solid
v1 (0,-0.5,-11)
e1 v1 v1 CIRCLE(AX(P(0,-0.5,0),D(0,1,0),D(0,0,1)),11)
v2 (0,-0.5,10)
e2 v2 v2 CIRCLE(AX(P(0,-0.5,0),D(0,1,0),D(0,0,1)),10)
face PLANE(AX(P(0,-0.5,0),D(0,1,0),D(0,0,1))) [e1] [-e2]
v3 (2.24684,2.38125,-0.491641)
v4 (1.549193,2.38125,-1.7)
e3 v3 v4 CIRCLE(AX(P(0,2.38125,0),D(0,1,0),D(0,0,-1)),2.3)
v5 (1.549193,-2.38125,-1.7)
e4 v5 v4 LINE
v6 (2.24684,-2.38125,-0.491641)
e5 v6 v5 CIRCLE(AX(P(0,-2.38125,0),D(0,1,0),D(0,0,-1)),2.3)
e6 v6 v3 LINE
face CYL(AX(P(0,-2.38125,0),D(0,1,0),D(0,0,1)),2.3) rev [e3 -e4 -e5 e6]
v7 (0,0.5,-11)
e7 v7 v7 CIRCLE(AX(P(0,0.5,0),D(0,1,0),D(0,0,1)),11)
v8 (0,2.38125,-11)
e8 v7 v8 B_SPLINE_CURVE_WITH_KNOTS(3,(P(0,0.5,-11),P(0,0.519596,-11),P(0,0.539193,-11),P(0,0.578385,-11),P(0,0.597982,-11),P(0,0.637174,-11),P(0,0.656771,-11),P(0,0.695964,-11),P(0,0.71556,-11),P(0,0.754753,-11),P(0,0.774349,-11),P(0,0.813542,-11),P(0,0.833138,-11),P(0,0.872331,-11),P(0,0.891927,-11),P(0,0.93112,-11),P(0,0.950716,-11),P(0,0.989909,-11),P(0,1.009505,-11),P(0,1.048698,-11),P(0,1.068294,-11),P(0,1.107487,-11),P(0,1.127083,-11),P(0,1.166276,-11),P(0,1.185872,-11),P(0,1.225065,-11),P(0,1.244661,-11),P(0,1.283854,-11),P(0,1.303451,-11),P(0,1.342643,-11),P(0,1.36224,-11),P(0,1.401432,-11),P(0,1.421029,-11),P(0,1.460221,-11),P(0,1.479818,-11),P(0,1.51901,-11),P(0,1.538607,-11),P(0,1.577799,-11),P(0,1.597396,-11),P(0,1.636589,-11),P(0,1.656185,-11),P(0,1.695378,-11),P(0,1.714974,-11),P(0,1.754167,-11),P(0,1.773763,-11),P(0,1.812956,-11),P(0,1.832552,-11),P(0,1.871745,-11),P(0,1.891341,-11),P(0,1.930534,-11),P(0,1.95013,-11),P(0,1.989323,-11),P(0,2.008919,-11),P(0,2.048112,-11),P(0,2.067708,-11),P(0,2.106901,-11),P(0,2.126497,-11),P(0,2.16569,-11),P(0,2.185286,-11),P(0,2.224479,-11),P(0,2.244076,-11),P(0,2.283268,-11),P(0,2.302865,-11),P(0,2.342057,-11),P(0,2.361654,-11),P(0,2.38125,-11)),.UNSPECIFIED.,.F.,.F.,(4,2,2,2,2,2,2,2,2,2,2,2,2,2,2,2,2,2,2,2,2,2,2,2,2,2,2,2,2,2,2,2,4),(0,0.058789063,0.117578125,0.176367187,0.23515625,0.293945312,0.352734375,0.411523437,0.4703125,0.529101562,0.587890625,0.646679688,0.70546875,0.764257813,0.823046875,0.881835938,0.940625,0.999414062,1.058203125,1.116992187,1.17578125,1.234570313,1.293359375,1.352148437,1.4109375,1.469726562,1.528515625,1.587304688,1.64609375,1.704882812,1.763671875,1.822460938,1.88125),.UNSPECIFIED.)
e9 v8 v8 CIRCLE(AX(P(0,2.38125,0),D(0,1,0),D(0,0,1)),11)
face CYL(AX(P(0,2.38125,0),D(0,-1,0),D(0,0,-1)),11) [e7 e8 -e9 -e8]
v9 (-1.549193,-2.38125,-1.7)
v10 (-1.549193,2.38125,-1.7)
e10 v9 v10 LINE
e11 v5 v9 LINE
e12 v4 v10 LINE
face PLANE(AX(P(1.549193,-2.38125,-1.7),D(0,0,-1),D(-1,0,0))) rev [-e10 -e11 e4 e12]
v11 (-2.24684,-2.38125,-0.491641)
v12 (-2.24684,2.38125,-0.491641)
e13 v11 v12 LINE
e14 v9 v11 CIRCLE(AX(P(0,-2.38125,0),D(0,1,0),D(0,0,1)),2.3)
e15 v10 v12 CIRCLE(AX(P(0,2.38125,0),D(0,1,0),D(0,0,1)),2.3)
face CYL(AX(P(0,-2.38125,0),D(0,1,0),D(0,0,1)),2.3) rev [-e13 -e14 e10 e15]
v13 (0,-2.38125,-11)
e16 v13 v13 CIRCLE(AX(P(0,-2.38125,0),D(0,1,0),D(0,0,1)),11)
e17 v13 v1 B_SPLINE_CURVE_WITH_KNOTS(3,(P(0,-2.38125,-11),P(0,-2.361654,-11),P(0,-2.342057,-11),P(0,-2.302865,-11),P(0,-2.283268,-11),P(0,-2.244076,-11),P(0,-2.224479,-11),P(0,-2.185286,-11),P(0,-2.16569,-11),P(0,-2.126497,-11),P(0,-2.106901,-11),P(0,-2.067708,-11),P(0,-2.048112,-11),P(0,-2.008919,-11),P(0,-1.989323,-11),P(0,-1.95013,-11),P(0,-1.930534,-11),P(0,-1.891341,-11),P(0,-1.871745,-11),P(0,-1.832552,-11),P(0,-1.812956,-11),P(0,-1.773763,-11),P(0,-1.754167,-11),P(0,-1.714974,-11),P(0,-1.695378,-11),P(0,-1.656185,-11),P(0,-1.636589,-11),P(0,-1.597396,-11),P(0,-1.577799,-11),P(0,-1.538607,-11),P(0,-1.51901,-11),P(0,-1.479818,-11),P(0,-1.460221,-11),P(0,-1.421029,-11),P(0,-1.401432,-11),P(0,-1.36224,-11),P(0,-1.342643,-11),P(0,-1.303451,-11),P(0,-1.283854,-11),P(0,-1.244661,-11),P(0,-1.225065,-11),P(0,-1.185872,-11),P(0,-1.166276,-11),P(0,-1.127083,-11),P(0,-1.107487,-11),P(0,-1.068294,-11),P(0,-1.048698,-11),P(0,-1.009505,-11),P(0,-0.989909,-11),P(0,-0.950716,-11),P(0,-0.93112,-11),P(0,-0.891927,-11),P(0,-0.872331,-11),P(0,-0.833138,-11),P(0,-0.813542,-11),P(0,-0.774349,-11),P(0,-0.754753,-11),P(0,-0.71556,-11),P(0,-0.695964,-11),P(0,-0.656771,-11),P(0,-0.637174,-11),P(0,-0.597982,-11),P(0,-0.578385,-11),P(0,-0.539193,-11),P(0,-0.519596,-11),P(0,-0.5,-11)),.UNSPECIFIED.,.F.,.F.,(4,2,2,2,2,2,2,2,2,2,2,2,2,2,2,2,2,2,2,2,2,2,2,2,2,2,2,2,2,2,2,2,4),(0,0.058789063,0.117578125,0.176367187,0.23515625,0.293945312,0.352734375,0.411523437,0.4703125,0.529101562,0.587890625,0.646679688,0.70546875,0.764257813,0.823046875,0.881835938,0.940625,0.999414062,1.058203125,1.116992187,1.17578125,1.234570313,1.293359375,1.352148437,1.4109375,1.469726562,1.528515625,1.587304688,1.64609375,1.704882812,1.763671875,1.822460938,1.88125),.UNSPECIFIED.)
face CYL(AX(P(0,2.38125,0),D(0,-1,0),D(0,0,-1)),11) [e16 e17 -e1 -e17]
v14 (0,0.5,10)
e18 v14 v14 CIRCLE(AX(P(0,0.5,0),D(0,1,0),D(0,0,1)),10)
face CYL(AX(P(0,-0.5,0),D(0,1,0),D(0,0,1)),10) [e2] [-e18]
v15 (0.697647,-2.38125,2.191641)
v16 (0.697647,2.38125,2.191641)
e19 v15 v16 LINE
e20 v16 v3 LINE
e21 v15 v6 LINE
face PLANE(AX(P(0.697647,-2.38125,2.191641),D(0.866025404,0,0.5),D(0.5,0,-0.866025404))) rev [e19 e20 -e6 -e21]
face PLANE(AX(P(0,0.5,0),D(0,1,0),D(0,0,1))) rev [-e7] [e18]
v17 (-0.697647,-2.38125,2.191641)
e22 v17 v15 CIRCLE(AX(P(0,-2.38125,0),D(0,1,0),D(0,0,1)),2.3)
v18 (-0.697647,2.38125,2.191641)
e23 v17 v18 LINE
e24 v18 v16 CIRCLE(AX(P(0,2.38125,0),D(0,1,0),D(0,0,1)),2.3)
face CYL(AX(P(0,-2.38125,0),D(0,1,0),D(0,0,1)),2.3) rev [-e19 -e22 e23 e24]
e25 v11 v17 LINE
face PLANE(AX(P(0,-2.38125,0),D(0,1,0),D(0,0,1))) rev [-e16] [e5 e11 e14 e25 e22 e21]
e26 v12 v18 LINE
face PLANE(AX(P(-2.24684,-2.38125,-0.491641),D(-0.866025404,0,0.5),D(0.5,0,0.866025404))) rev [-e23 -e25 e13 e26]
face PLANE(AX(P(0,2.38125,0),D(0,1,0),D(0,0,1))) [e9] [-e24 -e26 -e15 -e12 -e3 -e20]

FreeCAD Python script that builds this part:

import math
import FreeCAD as App
import Part
import Sketcher
Q = App.Units.Quantity

doc = App.newDocument("Part")
body = doc.addObject("PartDesign::Body", "Body")

# Sketch on XZ plane
sketch1 = doc.addObject("Sketcher::SketchObject", "Sketch")
body.addObject(sketch1)
sketch1.AttachmentSupport = (doc.XZ_Plane, [""])
sketch1.MapMode = "FlatFace"
sketch1.addGeometry(Part.Circle(App.Vector(0, 0, 0), App.Vector(0, 0, 1), 11), False)
sketch1.addConstraint([
    Sketcher.Constraint("Coincident", 0, 3, -1, 1),
    Sketcher.Constraint("Diameter", 0, 22.0),
])
pad1 = doc.addObject("PartDesign::Pad", "Pad")
body.addObject(pad1)
pad1.Profile = sketch1
pad1.Length = 4.7625
pad1.Midplane = True

# Sketch on XZ plane
sketch2 = doc.addObject("Sketcher::SketchObject", "Sketch001")
body.addObject(sketch2)
sketch2.AttachmentSupport = (doc.XZ_Plane, [""])
sketch2.MapMode = "FlatFace"
sketch2.addGeometry([
    Part.Circle(App.Vector(0, 0, 0), App.Vector(0, 0, 1), 11),
    Part.Circle(App.Vector(0, 0, 0), App.Vector(0, 0, 1), 10),
], False)
sketch2.addConstraint([
    Sketcher.Constraint("Coincident", 0, 3, -1, 1),
    Sketcher.Constraint("Coincident", 1, 3, -1, 1),
    Sketcher.Constraint("Diameter", 0, 22.0),
    Sketcher.Constraint("Diameter", 1, 20.0),
])
pocket1 = doc.addObject("PartDesign::Pocket", "Pocket")
body.addObject(pocket1)
pocket1.Profile = sketch2
pocket1.Length = 1
pocket1.Midplane = True

# Sketch on XZ plane
sketch3 = doc.addObject("Sketcher::SketchObject", "Sketch002")
body.addObject(sketch3)
sketch3.AttachmentSupport = (doc.XZ_Plane, [""])
sketch3.MapMode = "FlatFace"
sketch3.AttachmentOffset = App.Placement(App.Vector(0, 0, -2.38125), App.Rotation())
sketch3.addGeometry([
    Part.LineSegment(App.Vector(-2.24684, -0.491641, 0), App.Vector(-0.697647, 2.191641, 0)),  # 0
    Part.ArcOfCircle(Part.Circle(App.Vector(0, 0, 0), App.Vector(0, 0, 1), 2.3), math.radians(72.342605), math.radians(107.657395)),  # 1
    Part.LineSegment(App.Vector(0.697647, 2.191641, 0), App.Vector(2.24684, -0.491641, 0)),  # 2
    Part.ArcOfCircle(Part.Circle(App.Vector(0, 0, 0), App.Vector(0, 0, 1), 2.3), math.radians(-47.657395), math.radians(-12.342605)),  # 3
    Part.LineSegment(App.Vector(1.549193, -1.7, 0), App.Vector(-1.549193, -1.7, 0)),  # 4
    Part.ArcOfCircle(Part.Circle(App.Vector(0, 0, 0), App.Vector(0, 0, 1), 2.3), math.radians(-167.657395), math.radians(-132.342605)),  # 5
], False)
sketch3.addConstraint([
    Sketcher.Constraint("Coincident", 0, 2, 1, 2),
    Sketcher.Constraint("Coincident", 1, 1, 2, 1),
    Sketcher.Constraint("Coincident", 2, 2, 3, 2),
    Sketcher.Constraint("Coincident", 3, 1, 4, 1),
    Sketcher.Constraint("Coincident", 4, 2, 5, 2),
    Sketcher.Constraint("Coincident", 5, 1, 0, 1),
    Sketcher.Constraint("Horizontal", 4),
    Sketcher.Constraint("Coincident", 1, 3, -1, 1),
    Sketcher.Constraint("Coincident", 3, 3, -1, 1),
    Sketcher.Constraint("Coincident", 5, 3, -1, 1),
    Sketcher.Constraint("Equal", 1, 3),
    Sketcher.Constraint("Equal", 3, 5),
    Sketcher.Constraint("Horizontal", 0, 2, 1, 1),
    Sketcher.Constraint("Horizontal", 2, 2, 5, 1),
    Sketcher.Constraint("Radius", 1, 2.3),
    Sketcher.Constraint("Angle", 0, Q("60 deg")),
    Sketcher.Constraint("DistanceY", 3, 1, -1, 1, 1.7),
    Sketcher.Constraint("DistanceY", -1, 1, 0, 2, 2.191641),
])
pocket2 = doc.addObject("PartDesign::Pocket", "Pocket001")
body.addObject(pocket2)
pocket2.Profile = sketch3
pocket2.Type = "ThroughAll"
pocket2.Reversed = True

doc.recompute()
